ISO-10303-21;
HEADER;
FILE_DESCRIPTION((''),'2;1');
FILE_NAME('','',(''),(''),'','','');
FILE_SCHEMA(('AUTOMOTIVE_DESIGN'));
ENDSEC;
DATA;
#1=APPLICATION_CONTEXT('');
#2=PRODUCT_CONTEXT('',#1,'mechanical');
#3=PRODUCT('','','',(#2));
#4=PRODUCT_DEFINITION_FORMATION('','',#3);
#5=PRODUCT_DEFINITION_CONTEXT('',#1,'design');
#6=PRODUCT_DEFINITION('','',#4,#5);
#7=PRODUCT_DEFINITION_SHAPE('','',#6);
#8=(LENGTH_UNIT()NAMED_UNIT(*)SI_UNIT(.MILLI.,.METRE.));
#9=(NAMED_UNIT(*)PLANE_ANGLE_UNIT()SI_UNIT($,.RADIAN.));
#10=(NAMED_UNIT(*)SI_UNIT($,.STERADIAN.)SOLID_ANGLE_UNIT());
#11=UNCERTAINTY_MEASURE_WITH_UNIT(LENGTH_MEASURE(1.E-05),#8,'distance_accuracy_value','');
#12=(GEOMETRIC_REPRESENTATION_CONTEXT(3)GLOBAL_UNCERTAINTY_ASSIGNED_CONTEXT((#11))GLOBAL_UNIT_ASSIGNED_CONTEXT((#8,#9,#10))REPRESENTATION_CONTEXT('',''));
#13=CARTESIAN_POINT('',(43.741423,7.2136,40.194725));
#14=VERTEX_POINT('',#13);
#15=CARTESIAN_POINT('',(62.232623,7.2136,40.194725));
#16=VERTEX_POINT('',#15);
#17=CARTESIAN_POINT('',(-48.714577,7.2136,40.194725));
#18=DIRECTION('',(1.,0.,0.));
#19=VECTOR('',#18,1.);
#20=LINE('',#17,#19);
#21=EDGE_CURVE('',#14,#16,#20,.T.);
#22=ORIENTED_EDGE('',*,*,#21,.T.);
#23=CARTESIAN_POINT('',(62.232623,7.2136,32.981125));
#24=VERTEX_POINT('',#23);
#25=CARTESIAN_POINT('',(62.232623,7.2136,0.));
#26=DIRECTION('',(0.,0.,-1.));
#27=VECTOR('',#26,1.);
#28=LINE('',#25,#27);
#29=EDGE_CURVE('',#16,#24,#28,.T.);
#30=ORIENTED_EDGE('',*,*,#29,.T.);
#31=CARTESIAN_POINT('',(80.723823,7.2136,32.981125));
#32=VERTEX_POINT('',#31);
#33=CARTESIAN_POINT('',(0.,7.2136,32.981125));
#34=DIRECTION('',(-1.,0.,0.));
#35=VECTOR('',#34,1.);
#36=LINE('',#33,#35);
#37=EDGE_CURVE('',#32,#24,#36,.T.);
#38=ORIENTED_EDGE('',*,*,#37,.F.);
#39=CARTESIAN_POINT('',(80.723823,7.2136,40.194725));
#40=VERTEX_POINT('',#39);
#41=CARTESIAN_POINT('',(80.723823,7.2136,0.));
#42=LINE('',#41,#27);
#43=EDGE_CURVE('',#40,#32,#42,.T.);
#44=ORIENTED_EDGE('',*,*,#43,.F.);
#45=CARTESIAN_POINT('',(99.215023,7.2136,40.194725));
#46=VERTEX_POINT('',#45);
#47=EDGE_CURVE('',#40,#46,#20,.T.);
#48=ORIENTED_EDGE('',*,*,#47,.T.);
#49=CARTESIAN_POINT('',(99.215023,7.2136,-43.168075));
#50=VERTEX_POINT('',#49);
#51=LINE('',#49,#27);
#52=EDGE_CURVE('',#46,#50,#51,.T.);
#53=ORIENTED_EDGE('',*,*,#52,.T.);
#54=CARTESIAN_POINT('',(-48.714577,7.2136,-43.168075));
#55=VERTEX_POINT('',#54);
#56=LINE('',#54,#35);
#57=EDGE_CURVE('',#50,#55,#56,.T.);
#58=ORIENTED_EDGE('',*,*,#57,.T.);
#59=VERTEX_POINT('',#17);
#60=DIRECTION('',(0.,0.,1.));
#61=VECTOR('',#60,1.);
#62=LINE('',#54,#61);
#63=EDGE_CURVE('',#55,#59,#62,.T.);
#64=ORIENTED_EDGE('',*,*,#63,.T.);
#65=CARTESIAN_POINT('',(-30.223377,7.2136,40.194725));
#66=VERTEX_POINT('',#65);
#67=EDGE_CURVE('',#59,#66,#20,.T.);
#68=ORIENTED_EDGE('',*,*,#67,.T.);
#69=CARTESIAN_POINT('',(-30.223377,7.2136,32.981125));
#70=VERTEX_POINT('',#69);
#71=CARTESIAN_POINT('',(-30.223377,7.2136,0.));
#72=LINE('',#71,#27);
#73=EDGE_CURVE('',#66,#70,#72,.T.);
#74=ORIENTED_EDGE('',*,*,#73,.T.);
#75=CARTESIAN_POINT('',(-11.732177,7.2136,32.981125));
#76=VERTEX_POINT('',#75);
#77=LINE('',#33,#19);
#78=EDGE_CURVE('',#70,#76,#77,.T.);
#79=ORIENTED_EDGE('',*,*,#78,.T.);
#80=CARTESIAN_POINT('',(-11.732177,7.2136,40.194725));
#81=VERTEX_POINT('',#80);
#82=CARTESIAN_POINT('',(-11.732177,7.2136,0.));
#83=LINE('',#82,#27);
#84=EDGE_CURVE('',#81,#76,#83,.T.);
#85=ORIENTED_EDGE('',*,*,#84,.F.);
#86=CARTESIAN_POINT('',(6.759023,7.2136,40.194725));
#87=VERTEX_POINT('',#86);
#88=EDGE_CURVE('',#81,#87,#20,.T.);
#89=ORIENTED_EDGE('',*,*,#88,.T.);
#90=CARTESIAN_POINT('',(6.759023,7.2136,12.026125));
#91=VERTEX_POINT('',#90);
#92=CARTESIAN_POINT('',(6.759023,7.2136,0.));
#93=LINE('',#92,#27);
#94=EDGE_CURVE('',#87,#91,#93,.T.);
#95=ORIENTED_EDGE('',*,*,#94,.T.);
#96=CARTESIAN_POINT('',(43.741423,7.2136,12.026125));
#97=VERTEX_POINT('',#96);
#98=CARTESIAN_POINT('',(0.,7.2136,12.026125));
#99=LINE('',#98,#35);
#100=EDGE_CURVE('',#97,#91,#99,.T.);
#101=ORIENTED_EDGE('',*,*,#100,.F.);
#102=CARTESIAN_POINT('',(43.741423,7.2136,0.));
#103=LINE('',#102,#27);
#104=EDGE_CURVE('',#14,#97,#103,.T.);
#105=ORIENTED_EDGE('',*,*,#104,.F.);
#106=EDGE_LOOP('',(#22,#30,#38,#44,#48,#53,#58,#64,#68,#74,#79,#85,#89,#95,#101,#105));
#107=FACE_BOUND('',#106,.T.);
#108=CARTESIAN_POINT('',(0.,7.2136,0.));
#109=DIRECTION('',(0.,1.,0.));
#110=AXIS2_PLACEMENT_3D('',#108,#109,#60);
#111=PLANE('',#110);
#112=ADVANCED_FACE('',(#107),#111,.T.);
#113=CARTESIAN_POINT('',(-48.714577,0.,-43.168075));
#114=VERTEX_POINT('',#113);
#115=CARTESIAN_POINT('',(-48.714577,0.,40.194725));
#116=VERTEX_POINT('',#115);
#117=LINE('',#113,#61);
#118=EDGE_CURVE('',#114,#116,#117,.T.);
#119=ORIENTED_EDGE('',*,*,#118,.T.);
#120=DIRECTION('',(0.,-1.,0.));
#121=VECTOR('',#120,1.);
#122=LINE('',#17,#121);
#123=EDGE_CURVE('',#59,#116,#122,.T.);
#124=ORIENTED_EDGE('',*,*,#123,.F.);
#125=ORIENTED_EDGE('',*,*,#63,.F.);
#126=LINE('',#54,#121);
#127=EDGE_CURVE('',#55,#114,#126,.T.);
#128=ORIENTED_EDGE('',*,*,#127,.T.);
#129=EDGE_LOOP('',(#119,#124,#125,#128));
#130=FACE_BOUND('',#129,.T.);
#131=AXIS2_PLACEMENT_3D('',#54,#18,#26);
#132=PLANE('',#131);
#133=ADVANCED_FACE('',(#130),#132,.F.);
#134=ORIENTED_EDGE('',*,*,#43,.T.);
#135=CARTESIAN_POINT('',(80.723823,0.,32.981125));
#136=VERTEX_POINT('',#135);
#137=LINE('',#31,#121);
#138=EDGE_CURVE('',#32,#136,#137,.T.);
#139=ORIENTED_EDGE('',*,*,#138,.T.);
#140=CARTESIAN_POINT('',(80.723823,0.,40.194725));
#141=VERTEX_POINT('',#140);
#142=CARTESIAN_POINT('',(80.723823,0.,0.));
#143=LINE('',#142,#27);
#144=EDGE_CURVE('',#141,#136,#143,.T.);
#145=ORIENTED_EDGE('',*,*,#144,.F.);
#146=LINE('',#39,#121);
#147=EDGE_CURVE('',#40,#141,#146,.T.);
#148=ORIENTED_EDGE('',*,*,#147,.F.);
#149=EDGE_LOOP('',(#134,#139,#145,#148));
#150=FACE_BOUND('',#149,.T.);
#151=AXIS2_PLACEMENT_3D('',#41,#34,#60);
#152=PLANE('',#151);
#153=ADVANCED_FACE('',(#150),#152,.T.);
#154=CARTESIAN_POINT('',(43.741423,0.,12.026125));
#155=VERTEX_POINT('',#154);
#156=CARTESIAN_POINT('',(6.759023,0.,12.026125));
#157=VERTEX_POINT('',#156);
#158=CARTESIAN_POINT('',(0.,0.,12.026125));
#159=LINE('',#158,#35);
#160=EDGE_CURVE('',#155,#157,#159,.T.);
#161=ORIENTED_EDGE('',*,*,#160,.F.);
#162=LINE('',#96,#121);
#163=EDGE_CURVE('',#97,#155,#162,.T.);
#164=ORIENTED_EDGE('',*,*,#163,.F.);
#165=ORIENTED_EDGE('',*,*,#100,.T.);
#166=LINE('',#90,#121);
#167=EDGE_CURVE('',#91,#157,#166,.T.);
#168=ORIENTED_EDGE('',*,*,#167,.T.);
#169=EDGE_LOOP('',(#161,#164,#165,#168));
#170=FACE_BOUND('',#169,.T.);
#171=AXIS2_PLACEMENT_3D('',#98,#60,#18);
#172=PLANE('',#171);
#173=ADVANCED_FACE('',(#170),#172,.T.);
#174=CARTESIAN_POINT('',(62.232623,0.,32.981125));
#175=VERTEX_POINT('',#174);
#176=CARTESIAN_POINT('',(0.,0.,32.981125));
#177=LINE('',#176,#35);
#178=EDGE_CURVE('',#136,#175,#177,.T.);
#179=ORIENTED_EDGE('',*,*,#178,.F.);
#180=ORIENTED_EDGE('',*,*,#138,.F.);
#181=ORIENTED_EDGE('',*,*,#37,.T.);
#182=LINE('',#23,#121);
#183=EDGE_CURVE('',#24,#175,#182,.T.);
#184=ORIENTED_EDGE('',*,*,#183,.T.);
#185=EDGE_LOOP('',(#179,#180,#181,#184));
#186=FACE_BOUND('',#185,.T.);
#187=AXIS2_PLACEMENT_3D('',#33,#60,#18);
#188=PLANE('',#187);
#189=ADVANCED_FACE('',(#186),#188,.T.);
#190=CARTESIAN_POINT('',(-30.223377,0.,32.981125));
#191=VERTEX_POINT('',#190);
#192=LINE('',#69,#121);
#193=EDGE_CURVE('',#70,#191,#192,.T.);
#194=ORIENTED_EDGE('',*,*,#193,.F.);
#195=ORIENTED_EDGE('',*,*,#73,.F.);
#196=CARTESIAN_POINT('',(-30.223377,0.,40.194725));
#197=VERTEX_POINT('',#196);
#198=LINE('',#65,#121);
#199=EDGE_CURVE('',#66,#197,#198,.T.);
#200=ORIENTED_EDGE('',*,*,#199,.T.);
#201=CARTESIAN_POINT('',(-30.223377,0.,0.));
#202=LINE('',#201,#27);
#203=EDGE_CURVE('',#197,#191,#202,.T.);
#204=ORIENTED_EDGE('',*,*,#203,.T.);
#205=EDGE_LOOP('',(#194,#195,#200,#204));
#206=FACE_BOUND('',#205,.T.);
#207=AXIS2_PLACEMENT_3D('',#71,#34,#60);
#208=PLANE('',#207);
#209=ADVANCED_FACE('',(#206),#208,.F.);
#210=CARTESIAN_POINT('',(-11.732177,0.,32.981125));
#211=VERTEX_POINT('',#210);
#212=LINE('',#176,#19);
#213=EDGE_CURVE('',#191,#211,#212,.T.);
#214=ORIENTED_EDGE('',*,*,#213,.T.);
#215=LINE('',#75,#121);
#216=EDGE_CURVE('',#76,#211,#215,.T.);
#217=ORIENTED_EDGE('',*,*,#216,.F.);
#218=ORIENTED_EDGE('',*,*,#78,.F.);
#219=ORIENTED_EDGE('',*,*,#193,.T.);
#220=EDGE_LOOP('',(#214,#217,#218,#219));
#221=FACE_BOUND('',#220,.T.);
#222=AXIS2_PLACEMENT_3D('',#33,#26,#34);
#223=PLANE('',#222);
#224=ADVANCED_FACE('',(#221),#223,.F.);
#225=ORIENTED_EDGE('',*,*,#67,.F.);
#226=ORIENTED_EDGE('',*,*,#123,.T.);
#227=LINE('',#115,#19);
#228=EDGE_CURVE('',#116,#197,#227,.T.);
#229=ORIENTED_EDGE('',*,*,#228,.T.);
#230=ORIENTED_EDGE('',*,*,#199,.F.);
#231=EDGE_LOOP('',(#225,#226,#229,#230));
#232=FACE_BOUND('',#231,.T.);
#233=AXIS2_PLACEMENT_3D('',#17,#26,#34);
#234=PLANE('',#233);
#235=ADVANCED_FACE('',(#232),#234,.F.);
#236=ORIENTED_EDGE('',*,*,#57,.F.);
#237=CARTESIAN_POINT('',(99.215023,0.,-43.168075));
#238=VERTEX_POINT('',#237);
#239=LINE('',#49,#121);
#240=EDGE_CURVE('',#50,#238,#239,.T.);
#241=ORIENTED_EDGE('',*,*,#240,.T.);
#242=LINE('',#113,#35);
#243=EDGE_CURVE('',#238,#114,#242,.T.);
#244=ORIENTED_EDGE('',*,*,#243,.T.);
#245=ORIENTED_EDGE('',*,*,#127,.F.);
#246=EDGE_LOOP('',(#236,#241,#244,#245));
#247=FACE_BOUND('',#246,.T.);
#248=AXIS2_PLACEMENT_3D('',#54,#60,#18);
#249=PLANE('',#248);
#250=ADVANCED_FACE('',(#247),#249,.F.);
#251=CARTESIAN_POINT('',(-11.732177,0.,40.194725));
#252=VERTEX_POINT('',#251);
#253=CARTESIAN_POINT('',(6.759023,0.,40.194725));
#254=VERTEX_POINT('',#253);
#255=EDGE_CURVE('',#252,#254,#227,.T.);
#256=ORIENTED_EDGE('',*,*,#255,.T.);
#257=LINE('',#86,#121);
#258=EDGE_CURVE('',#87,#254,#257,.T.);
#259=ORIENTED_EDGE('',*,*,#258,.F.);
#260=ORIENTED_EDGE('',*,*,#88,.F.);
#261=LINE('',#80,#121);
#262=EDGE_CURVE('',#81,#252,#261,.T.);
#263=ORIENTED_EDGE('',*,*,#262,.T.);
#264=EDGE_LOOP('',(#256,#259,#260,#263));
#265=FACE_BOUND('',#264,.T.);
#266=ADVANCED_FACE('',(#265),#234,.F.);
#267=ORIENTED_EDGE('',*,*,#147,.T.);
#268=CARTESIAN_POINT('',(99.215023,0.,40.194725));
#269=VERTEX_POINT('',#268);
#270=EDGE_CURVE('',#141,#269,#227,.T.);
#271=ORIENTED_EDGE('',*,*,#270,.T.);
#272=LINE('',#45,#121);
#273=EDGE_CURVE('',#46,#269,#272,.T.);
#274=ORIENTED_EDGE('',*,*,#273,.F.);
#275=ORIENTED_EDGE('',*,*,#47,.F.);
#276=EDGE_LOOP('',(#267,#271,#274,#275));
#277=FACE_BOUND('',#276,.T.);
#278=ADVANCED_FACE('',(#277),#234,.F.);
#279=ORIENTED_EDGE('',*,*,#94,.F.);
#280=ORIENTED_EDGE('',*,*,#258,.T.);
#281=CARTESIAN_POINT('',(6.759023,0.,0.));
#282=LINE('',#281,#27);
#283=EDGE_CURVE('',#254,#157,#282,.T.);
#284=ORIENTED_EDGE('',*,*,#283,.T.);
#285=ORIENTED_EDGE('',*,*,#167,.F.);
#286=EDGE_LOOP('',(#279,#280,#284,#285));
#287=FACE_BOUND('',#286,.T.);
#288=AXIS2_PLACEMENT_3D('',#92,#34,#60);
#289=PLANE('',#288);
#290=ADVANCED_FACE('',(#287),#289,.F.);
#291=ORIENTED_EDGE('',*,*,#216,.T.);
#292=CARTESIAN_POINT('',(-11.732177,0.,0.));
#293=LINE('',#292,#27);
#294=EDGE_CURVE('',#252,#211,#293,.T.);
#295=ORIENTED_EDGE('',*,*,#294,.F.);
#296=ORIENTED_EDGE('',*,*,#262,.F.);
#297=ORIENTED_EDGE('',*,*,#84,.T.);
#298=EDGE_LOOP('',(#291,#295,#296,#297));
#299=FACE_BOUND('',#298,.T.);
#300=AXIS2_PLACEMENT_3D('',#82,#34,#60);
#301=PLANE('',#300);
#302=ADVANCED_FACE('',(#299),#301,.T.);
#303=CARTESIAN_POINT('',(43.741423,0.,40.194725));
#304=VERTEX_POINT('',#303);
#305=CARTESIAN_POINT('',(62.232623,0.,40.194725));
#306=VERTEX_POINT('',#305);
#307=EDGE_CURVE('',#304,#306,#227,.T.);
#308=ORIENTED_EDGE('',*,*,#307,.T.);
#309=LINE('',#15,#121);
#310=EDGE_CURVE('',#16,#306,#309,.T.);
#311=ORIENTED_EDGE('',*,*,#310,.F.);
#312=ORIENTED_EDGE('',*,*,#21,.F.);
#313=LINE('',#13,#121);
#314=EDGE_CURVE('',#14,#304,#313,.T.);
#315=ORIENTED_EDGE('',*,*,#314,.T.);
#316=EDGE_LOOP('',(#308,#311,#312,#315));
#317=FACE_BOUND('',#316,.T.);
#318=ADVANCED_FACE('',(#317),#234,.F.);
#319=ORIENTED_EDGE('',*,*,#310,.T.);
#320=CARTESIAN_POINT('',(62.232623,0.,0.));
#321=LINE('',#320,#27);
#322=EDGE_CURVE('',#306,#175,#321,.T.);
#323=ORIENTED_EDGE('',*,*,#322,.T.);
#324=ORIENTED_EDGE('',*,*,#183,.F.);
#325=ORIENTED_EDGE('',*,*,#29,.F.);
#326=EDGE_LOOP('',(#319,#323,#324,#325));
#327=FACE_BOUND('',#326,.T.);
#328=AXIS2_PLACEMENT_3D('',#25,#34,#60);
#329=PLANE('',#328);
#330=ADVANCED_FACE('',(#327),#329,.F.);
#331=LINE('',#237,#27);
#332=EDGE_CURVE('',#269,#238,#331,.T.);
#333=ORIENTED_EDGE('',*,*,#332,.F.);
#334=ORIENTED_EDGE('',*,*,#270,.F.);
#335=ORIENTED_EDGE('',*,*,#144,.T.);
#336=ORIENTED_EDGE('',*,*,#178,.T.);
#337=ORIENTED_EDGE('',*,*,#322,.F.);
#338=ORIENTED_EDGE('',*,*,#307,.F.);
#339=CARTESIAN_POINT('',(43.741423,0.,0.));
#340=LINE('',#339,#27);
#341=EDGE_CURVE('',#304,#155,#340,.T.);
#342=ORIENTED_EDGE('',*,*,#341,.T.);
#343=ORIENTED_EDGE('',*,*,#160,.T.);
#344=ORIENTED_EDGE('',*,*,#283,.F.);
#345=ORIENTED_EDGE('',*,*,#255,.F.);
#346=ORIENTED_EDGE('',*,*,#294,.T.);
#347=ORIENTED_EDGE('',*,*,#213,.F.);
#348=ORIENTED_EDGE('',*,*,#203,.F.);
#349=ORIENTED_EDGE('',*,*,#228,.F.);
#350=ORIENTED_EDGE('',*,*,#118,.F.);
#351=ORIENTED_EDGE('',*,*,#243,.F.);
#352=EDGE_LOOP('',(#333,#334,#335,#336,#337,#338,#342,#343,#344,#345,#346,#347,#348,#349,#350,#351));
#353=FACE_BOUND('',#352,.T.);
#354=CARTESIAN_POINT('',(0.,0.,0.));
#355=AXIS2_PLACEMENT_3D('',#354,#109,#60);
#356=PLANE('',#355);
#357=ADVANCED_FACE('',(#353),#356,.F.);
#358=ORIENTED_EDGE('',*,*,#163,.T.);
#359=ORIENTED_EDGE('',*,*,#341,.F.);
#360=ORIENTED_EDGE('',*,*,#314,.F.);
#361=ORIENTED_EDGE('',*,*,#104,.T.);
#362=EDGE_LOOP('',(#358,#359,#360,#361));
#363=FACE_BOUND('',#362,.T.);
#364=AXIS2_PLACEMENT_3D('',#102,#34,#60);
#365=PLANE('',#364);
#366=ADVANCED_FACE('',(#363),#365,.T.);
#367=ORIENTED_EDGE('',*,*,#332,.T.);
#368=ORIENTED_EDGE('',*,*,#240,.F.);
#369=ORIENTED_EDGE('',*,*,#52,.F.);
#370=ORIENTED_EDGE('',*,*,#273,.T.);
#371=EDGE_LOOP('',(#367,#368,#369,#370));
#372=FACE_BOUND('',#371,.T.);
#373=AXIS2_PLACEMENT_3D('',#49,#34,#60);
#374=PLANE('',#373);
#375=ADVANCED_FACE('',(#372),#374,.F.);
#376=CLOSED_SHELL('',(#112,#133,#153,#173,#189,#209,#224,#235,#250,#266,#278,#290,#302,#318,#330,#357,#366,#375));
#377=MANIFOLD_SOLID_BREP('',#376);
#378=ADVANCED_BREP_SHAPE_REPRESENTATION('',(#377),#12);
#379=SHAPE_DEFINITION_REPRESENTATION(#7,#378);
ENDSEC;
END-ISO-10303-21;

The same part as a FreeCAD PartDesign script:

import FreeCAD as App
import Part
import Sketcher

V = App.Vector
Q = App.Units.Quantity


def add_polygon(sketch, points):
    """Adds a closed chain of lines whose ends are joined by coincident constraints."""
    first, n = sketch.GeometryCount, len(points)
    for a, b in zip(points, points[1:] + points[:1]):
        sketch.addGeometry(Part.LineSegment(App.Vector(*a, 0), App.Vector(*b, 0)), False)
    for i in range(n):
        sketch.addConstraint(Sketcher.Constraint("Coincident", first + i, 2, first + (i + 1) % n, 1))

doc = App.newDocument("Part")
params = doc.addObject("Spreadsheet::Sheet", "Params")
for row, (alias, value) in enumerate([
    ("sketch1_width", "5.824 in"),
    ("sketch1_height", "3.282 in"),
    ("pad1_length", "0.284 in"),
    ("sketch2_width", "0.728 in"),
    ("sketch2_width2", "1.456 in"),
    ("sketch2_height", "0.284 in"),
    ("sketch2_height2", "1.109 in"),
], start=1):
    params.set(f"A{row}", alias)
    params.set(f"B{row}", "=" + value)
    params.setAlias(f"B{row}", alias)

body = doc.addObject("PartDesign::Body", "Body")

sketch1 = body.newObject("Sketcher::SketchObject", "Sketch")
sketch1.AttachmentSupport = (doc.getObject("XZ_Plane"), [""])
sketch1.MapMode = "FlatFace"
add_polygon(sketch1, [(-49, -43), (-49, 40), (99, 40), (99, -43)])
sketch1.addConstraint(Sketcher.Constraint("Vertical", 0))
sketch1.addConstraint(Sketcher.Constraint("Horizontal", 1))
sketch1.addConstraint(Sketcher.Constraint("Vertical", 2))
sketch1.addConstraint(Sketcher.Constraint("Horizontal", 3))
sketch1.addConstraint(Sketcher.Constraint("DistanceX", 1, 1, 1, 2, Q("5.824 in")))
sketch1.addConstraint(Sketcher.Constraint("DistanceY", 0, 1, 0, 2, Q("3.282 in")))
sketch1.addConstraint(Sketcher.Constraint("DistanceX", 0, 2, -1, 1, 48.714577))
sketch1.addConstraint(Sketcher.Constraint("DistanceY", -1, 1, 0, 2, 40.194725))
sketch1.setExpression("Constraints[8]", "Params.sketch1_width")
sketch1.setExpression("Constraints[9]", "Params.sketch1_height")
pad1 = body.newObject("PartDesign::Pad", "Pad")
pad1.Profile = sketch1
pad1.setExpression("Length", "Params.pad1_length")
pad1.Reversed = True

sketch2 = body.newObject("Sketcher::SketchObject", "Sketch001")
sketch2.AttachmentSupport = (doc.getObject("XZ_Plane"), [""])
sketch2.MapMode = "FlatFace"
add_polygon(sketch2, [(-30, 40), (-30, 33), (-12, 33), (-12, 40)])
add_polygon(sketch2, [(7, 40), (7, 12), (44, 12), (44, 40)])
add_polygon(sketch2, [(62, 40), (62, 33), (81, 33), (81, 40)])
sketch2.addConstraint(Sketcher.Constraint("Vertical", 0))
sketch2.addConstraint(Sketcher.Constraint("Horizontal", 1))
sketch2.addConstraint(Sketcher.Constraint("Vertical", 2))
sketch2.addConstraint(Sketcher.Constraint("Horizontal", 3))
sketch2.addConstraint(Sketcher.Constraint("Vertical", 4))
sketch2.addConstraint(Sketcher.Constraint("Horizontal", 5))
sketch2.addConstraint(Sketcher.Constraint("Vertical", 6))
sketch2.addConstraint(Sketcher.Constraint("Horizontal", 7))
sketch2.addConstraint(Sketcher.Constraint("Vertical", 8))
sketch2.addConstraint(Sketcher.Constraint("Horizontal", 9))
sketch2.addConstraint(Sketcher.Constraint("Vertical", 10))
sketch2.addConstraint(Sketcher.Constraint("Horizontal", 11))
sketch2.addConstraint(Sketcher.Constraint("Horizontal", 3, 2, 6, 2))
sketch2.addConstraint(Sketcher.Constraint("Horizontal", 1, 2, 8, 2))
sketch2.addConstraint(Sketcher.Constraint("Horizontal", 7, 2, 10, 2))
sketch2.addConstraint(Sketcher.Constraint("Equal", 3, 9))
sketch2.addConstraint(Sketcher.Constraint("DistanceX", 1, 1, 1, 2, Q("0.728 in")))
sketch2.addConstraint(Sketcher.Constraint("DistanceX", 5, 1, 5, 2, Q("1.456 in")))
sketch2.addConstraint(Sketcher.Constraint("DistanceY", 0, 2, 0, 1, Q("0.284 in")))
sketch2.addConstraint(Sketcher.Constraint("DistanceY", 4, 2, 4, 1, Q("1.109 in")))
sketch2.addConstraint(Sketcher.Constraint("DistanceX", 1, 2, 4, 2, Q("0.728 in")))
sketch2.addConstraint(Sketcher.Constraint("DistanceX", 6, 2, 8, 2, Q("0.728 in")))
sketch2.addConstraint(Sketcher.Constraint("DistanceX", 0, 2, -1, 1, 30.223377))
sketch2.addConstraint(Sketcher.Constraint("DistanceY", -1, 1, 0, 2, 32.981125))
sketch2.setExpression("Constraints[28]", "Params.sketch2_width")
sketch2.setExpression("Constraints[29]", "Params.sketch2_width2")
sketch2.setExpression("Constraints[30]", "Params.sketch2_height")
sketch2.setExpression("Constraints[31]", "Params.sketch2_height2")
pocket1 = body.newObject("PartDesign::Pocket", "Pocket")
pocket1.Profile = sketch2
pocket1.Type = "ThroughAll"

doc.recompute()
